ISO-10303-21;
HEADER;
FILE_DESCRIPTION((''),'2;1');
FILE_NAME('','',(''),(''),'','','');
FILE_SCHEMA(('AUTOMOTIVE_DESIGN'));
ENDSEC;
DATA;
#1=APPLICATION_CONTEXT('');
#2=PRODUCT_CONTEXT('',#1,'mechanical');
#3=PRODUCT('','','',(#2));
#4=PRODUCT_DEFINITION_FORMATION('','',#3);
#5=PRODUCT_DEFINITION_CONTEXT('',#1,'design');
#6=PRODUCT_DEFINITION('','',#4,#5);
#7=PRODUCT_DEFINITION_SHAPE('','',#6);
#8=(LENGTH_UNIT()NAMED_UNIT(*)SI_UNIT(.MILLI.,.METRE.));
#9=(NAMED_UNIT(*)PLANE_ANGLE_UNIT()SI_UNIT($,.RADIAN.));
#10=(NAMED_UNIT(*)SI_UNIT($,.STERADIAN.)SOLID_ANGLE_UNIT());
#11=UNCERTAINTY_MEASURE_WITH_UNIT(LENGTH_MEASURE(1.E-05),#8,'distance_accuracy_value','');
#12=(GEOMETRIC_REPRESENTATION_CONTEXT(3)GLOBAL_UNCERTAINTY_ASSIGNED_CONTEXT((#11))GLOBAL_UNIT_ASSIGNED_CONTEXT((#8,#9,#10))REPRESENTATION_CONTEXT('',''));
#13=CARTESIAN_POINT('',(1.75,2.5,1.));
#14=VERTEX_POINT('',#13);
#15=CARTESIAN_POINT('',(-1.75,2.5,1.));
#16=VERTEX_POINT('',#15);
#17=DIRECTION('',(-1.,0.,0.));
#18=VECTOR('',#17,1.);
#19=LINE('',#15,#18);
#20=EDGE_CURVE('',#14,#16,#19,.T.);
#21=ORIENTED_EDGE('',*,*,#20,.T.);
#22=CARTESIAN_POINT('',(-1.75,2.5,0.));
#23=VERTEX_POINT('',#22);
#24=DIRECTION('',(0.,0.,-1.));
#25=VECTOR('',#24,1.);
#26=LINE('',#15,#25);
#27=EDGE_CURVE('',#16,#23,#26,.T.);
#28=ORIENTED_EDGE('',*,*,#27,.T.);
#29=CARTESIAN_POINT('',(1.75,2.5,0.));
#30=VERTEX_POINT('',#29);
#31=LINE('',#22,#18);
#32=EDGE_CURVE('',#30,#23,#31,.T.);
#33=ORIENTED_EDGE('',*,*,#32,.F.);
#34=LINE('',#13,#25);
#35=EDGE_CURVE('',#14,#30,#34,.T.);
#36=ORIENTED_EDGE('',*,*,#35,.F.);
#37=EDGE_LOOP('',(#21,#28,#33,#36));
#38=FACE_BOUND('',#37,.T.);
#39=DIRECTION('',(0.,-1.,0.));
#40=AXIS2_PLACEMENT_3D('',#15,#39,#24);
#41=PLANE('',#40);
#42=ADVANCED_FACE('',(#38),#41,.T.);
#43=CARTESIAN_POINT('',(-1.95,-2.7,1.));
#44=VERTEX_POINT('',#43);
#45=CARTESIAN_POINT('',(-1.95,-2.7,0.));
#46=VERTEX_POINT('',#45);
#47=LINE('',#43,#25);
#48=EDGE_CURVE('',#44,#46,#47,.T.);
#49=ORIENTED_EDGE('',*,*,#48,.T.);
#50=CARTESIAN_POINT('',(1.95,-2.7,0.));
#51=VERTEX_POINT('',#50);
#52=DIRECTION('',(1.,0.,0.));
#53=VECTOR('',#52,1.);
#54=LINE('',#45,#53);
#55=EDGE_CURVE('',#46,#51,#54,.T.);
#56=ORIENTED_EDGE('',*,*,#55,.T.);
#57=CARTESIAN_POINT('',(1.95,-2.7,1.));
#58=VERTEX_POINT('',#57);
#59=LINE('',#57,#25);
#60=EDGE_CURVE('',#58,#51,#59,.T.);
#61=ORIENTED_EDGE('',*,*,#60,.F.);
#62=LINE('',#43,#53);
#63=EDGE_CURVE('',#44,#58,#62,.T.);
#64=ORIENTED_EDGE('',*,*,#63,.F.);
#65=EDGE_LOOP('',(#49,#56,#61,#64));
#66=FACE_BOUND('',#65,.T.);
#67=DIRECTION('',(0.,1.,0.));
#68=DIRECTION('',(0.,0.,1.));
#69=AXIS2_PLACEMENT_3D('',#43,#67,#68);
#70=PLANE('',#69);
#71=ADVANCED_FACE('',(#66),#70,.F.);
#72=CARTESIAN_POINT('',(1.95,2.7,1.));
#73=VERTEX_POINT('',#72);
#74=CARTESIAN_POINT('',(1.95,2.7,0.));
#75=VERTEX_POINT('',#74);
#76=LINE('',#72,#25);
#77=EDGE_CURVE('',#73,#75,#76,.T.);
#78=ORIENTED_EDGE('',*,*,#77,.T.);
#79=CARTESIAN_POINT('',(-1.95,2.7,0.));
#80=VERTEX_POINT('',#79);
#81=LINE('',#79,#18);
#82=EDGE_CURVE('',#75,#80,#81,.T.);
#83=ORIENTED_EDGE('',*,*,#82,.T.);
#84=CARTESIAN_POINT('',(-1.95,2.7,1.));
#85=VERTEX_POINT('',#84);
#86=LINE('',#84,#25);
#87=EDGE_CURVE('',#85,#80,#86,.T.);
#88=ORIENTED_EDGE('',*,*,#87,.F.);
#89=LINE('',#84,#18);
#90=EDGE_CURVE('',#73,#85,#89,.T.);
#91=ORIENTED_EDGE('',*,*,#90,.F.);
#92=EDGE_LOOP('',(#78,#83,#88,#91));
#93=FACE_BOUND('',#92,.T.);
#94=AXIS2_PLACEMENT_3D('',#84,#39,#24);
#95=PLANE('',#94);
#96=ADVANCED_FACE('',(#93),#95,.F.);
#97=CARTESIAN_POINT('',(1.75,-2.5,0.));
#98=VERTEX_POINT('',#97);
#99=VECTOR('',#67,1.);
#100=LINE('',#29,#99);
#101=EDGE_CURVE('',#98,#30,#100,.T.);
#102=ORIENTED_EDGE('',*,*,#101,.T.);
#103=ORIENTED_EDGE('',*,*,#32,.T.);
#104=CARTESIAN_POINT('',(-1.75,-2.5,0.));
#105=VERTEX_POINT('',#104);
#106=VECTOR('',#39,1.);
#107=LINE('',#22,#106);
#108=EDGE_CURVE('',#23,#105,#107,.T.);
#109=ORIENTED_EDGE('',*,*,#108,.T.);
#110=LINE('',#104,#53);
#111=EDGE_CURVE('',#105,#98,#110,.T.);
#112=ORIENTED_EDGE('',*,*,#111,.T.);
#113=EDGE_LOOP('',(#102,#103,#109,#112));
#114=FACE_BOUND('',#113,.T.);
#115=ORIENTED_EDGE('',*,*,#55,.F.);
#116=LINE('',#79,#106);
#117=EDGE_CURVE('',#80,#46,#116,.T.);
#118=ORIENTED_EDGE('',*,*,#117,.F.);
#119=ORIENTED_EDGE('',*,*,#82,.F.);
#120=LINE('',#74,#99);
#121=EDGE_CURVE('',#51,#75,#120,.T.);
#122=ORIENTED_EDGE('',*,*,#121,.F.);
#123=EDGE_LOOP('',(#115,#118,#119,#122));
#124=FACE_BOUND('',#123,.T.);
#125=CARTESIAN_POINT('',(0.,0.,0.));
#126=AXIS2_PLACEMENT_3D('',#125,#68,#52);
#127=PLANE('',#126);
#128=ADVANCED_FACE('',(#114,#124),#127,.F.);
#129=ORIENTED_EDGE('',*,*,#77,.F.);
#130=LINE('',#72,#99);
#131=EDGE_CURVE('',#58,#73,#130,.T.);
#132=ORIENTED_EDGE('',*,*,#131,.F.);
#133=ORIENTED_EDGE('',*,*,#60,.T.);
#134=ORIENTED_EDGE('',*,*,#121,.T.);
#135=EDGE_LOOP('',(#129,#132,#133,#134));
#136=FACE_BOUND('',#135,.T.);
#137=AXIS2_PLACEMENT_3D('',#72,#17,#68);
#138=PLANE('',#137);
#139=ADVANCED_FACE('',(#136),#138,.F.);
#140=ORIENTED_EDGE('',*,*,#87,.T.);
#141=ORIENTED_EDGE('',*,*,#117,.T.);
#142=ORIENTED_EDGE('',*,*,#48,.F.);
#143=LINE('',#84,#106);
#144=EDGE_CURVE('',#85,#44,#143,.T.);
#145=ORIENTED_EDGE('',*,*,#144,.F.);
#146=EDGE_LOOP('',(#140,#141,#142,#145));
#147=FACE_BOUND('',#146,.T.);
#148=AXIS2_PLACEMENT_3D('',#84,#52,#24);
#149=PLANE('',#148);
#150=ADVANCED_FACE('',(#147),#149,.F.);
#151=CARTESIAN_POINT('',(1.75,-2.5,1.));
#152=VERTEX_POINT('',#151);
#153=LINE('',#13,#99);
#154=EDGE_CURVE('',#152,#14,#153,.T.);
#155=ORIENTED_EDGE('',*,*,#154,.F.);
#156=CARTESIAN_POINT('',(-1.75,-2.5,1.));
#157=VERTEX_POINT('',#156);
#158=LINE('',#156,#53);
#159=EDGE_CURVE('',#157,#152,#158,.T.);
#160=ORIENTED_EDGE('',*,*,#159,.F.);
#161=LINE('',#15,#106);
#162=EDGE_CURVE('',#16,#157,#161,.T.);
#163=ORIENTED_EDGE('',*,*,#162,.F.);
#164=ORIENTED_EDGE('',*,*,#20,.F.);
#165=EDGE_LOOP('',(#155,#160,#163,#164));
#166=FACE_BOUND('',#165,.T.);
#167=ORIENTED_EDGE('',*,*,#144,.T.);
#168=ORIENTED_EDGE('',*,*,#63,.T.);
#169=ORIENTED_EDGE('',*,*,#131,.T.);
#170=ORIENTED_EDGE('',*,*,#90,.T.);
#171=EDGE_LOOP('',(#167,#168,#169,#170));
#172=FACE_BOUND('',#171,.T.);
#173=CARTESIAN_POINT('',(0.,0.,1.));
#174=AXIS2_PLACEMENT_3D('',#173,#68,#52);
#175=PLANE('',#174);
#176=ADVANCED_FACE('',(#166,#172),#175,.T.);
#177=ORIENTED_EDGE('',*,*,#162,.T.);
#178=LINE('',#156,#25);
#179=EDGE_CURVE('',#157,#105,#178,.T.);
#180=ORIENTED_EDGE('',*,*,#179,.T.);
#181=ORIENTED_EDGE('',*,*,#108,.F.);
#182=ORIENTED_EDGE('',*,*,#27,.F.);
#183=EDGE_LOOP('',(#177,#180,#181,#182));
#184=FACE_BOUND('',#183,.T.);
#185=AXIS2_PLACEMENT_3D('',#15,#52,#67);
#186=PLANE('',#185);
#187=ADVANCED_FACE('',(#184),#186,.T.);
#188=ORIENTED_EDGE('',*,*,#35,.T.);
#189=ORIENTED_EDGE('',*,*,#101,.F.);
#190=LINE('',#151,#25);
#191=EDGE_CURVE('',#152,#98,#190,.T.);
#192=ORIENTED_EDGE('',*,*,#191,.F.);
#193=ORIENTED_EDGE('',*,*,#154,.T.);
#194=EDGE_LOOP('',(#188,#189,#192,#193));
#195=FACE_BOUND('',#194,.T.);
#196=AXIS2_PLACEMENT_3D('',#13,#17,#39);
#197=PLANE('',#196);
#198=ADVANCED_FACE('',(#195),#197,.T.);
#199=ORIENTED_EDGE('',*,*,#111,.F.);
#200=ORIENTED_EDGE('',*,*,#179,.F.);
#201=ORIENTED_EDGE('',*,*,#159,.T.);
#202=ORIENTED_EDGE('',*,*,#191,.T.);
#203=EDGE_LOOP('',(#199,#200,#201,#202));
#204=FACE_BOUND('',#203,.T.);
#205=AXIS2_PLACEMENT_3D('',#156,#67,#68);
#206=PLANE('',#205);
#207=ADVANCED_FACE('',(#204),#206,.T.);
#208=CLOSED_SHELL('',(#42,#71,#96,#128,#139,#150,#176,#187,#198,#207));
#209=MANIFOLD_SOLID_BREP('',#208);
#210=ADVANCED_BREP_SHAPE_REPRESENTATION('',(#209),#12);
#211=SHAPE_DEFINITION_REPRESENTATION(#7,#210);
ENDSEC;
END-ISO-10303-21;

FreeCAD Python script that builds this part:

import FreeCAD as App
import Part
import Sketcher
Q = App.Units.Quantity


def add_polygon(sketch, points):
    """Adds a closed chain of lines whose ends are joined by coincident constraints."""
    first, n = sketch.GeometryCount, len(points)
    for a, b in zip(points, points[1:] + points[:1]):
        sketch.addGeometry(Part.LineSegment(App.Vector(*a, 0), App.Vector(*b, 0)), False)
    for i in range(n):
        sketch.addConstraint(Sketcher.Constraint("Coincident", first + i, 2, first + (i + 1) % n, 1))

doc = App.newDocument("Part")
params = doc.addObject("Spreadsheet::Sheet", "Params")
for row, (alias, value) in enumerate([
    ("sketch1_height", "5 mm"),
    ("sketch1_width", "3.9 mm"),
    ("sketch1_width2", "3.5 mm"),
    ("sketch1_height2", "5.4 mm"),
    ("pad1_length", "1 mm"),
], start=1):
    params.set(f"A{row}", alias)
    params.set(f"B{row}", "=" + value)
    params.setAlias(f"B{row}", alias)

body = doc.addObject("PartDesign::Body", "Body")

sketch1 = body.newObject("Sketcher::SketchObject", "Sketch")
sketch1.AttachmentSupport = (doc.getObject("XY_Plane"), [""])
sketch1.MapMode = "FlatFace"
add_polygon(sketch1, [(-1.9, 2.7), (-1.9, -2.7), (1.9, -2.7), (1.9, 2.7)])
add_polygon(sketch1, [(1.8, -2.5), (-1.8, -2.5), (-1.8, 2.5), (1.8, 2.5)])
sketch1.addConstraint([
    Sketcher.Constraint("Vertical", 0),
    Sketcher.Constraint("Horizontal", 1),
    Sketcher.Constraint("Vertical", 2),
    Sketcher.Constraint("Horizontal", 3),
    Sketcher.Constraint("Horizontal", 4),
    Sketcher.Constraint("Vertical", 5),
    Sketcher.Constraint("Horizontal", 6),
    Sketcher.Constraint("Vertical", 7),
    Sketcher.Constraint("Symmetric", 0, 2, 2, 2, -1, 1),
    Sketcher.Constraint("Symmetric", 4, 2, 6, 2, -1, 1),
    Sketcher.Constraint("DistanceY", 5, 1, 5, 2, Q("5 mm")),
    Sketcher.Constraint("DistanceX", 1, 1, 1, 2, Q("3.9 mm")),
    Sketcher.Constraint("DistanceX", 4, 2, 4, 1, Q("3.5 mm")),
    Sketcher.Constraint("DistanceY", 0, 2, 0, 1, Q("5.4 mm")),
])
sketch1.setExpression("Constraints[18]", "Params.sketch1_height")
sketch1.setExpression("Constraints[19]", "Params.sketch1_width")
sketch1.setExpression("Constraints[20]", "Params.sketch1_width2")
sketch1.setExpression("Constraints[21]", "Params.sketch1_height2")
pad1 = body.newObject("PartDesign::Pad", "Pad")
pad1.Profile = sketch1
pad1.setExpression("Length", "Params.pad1_length")

doc.recompute()
